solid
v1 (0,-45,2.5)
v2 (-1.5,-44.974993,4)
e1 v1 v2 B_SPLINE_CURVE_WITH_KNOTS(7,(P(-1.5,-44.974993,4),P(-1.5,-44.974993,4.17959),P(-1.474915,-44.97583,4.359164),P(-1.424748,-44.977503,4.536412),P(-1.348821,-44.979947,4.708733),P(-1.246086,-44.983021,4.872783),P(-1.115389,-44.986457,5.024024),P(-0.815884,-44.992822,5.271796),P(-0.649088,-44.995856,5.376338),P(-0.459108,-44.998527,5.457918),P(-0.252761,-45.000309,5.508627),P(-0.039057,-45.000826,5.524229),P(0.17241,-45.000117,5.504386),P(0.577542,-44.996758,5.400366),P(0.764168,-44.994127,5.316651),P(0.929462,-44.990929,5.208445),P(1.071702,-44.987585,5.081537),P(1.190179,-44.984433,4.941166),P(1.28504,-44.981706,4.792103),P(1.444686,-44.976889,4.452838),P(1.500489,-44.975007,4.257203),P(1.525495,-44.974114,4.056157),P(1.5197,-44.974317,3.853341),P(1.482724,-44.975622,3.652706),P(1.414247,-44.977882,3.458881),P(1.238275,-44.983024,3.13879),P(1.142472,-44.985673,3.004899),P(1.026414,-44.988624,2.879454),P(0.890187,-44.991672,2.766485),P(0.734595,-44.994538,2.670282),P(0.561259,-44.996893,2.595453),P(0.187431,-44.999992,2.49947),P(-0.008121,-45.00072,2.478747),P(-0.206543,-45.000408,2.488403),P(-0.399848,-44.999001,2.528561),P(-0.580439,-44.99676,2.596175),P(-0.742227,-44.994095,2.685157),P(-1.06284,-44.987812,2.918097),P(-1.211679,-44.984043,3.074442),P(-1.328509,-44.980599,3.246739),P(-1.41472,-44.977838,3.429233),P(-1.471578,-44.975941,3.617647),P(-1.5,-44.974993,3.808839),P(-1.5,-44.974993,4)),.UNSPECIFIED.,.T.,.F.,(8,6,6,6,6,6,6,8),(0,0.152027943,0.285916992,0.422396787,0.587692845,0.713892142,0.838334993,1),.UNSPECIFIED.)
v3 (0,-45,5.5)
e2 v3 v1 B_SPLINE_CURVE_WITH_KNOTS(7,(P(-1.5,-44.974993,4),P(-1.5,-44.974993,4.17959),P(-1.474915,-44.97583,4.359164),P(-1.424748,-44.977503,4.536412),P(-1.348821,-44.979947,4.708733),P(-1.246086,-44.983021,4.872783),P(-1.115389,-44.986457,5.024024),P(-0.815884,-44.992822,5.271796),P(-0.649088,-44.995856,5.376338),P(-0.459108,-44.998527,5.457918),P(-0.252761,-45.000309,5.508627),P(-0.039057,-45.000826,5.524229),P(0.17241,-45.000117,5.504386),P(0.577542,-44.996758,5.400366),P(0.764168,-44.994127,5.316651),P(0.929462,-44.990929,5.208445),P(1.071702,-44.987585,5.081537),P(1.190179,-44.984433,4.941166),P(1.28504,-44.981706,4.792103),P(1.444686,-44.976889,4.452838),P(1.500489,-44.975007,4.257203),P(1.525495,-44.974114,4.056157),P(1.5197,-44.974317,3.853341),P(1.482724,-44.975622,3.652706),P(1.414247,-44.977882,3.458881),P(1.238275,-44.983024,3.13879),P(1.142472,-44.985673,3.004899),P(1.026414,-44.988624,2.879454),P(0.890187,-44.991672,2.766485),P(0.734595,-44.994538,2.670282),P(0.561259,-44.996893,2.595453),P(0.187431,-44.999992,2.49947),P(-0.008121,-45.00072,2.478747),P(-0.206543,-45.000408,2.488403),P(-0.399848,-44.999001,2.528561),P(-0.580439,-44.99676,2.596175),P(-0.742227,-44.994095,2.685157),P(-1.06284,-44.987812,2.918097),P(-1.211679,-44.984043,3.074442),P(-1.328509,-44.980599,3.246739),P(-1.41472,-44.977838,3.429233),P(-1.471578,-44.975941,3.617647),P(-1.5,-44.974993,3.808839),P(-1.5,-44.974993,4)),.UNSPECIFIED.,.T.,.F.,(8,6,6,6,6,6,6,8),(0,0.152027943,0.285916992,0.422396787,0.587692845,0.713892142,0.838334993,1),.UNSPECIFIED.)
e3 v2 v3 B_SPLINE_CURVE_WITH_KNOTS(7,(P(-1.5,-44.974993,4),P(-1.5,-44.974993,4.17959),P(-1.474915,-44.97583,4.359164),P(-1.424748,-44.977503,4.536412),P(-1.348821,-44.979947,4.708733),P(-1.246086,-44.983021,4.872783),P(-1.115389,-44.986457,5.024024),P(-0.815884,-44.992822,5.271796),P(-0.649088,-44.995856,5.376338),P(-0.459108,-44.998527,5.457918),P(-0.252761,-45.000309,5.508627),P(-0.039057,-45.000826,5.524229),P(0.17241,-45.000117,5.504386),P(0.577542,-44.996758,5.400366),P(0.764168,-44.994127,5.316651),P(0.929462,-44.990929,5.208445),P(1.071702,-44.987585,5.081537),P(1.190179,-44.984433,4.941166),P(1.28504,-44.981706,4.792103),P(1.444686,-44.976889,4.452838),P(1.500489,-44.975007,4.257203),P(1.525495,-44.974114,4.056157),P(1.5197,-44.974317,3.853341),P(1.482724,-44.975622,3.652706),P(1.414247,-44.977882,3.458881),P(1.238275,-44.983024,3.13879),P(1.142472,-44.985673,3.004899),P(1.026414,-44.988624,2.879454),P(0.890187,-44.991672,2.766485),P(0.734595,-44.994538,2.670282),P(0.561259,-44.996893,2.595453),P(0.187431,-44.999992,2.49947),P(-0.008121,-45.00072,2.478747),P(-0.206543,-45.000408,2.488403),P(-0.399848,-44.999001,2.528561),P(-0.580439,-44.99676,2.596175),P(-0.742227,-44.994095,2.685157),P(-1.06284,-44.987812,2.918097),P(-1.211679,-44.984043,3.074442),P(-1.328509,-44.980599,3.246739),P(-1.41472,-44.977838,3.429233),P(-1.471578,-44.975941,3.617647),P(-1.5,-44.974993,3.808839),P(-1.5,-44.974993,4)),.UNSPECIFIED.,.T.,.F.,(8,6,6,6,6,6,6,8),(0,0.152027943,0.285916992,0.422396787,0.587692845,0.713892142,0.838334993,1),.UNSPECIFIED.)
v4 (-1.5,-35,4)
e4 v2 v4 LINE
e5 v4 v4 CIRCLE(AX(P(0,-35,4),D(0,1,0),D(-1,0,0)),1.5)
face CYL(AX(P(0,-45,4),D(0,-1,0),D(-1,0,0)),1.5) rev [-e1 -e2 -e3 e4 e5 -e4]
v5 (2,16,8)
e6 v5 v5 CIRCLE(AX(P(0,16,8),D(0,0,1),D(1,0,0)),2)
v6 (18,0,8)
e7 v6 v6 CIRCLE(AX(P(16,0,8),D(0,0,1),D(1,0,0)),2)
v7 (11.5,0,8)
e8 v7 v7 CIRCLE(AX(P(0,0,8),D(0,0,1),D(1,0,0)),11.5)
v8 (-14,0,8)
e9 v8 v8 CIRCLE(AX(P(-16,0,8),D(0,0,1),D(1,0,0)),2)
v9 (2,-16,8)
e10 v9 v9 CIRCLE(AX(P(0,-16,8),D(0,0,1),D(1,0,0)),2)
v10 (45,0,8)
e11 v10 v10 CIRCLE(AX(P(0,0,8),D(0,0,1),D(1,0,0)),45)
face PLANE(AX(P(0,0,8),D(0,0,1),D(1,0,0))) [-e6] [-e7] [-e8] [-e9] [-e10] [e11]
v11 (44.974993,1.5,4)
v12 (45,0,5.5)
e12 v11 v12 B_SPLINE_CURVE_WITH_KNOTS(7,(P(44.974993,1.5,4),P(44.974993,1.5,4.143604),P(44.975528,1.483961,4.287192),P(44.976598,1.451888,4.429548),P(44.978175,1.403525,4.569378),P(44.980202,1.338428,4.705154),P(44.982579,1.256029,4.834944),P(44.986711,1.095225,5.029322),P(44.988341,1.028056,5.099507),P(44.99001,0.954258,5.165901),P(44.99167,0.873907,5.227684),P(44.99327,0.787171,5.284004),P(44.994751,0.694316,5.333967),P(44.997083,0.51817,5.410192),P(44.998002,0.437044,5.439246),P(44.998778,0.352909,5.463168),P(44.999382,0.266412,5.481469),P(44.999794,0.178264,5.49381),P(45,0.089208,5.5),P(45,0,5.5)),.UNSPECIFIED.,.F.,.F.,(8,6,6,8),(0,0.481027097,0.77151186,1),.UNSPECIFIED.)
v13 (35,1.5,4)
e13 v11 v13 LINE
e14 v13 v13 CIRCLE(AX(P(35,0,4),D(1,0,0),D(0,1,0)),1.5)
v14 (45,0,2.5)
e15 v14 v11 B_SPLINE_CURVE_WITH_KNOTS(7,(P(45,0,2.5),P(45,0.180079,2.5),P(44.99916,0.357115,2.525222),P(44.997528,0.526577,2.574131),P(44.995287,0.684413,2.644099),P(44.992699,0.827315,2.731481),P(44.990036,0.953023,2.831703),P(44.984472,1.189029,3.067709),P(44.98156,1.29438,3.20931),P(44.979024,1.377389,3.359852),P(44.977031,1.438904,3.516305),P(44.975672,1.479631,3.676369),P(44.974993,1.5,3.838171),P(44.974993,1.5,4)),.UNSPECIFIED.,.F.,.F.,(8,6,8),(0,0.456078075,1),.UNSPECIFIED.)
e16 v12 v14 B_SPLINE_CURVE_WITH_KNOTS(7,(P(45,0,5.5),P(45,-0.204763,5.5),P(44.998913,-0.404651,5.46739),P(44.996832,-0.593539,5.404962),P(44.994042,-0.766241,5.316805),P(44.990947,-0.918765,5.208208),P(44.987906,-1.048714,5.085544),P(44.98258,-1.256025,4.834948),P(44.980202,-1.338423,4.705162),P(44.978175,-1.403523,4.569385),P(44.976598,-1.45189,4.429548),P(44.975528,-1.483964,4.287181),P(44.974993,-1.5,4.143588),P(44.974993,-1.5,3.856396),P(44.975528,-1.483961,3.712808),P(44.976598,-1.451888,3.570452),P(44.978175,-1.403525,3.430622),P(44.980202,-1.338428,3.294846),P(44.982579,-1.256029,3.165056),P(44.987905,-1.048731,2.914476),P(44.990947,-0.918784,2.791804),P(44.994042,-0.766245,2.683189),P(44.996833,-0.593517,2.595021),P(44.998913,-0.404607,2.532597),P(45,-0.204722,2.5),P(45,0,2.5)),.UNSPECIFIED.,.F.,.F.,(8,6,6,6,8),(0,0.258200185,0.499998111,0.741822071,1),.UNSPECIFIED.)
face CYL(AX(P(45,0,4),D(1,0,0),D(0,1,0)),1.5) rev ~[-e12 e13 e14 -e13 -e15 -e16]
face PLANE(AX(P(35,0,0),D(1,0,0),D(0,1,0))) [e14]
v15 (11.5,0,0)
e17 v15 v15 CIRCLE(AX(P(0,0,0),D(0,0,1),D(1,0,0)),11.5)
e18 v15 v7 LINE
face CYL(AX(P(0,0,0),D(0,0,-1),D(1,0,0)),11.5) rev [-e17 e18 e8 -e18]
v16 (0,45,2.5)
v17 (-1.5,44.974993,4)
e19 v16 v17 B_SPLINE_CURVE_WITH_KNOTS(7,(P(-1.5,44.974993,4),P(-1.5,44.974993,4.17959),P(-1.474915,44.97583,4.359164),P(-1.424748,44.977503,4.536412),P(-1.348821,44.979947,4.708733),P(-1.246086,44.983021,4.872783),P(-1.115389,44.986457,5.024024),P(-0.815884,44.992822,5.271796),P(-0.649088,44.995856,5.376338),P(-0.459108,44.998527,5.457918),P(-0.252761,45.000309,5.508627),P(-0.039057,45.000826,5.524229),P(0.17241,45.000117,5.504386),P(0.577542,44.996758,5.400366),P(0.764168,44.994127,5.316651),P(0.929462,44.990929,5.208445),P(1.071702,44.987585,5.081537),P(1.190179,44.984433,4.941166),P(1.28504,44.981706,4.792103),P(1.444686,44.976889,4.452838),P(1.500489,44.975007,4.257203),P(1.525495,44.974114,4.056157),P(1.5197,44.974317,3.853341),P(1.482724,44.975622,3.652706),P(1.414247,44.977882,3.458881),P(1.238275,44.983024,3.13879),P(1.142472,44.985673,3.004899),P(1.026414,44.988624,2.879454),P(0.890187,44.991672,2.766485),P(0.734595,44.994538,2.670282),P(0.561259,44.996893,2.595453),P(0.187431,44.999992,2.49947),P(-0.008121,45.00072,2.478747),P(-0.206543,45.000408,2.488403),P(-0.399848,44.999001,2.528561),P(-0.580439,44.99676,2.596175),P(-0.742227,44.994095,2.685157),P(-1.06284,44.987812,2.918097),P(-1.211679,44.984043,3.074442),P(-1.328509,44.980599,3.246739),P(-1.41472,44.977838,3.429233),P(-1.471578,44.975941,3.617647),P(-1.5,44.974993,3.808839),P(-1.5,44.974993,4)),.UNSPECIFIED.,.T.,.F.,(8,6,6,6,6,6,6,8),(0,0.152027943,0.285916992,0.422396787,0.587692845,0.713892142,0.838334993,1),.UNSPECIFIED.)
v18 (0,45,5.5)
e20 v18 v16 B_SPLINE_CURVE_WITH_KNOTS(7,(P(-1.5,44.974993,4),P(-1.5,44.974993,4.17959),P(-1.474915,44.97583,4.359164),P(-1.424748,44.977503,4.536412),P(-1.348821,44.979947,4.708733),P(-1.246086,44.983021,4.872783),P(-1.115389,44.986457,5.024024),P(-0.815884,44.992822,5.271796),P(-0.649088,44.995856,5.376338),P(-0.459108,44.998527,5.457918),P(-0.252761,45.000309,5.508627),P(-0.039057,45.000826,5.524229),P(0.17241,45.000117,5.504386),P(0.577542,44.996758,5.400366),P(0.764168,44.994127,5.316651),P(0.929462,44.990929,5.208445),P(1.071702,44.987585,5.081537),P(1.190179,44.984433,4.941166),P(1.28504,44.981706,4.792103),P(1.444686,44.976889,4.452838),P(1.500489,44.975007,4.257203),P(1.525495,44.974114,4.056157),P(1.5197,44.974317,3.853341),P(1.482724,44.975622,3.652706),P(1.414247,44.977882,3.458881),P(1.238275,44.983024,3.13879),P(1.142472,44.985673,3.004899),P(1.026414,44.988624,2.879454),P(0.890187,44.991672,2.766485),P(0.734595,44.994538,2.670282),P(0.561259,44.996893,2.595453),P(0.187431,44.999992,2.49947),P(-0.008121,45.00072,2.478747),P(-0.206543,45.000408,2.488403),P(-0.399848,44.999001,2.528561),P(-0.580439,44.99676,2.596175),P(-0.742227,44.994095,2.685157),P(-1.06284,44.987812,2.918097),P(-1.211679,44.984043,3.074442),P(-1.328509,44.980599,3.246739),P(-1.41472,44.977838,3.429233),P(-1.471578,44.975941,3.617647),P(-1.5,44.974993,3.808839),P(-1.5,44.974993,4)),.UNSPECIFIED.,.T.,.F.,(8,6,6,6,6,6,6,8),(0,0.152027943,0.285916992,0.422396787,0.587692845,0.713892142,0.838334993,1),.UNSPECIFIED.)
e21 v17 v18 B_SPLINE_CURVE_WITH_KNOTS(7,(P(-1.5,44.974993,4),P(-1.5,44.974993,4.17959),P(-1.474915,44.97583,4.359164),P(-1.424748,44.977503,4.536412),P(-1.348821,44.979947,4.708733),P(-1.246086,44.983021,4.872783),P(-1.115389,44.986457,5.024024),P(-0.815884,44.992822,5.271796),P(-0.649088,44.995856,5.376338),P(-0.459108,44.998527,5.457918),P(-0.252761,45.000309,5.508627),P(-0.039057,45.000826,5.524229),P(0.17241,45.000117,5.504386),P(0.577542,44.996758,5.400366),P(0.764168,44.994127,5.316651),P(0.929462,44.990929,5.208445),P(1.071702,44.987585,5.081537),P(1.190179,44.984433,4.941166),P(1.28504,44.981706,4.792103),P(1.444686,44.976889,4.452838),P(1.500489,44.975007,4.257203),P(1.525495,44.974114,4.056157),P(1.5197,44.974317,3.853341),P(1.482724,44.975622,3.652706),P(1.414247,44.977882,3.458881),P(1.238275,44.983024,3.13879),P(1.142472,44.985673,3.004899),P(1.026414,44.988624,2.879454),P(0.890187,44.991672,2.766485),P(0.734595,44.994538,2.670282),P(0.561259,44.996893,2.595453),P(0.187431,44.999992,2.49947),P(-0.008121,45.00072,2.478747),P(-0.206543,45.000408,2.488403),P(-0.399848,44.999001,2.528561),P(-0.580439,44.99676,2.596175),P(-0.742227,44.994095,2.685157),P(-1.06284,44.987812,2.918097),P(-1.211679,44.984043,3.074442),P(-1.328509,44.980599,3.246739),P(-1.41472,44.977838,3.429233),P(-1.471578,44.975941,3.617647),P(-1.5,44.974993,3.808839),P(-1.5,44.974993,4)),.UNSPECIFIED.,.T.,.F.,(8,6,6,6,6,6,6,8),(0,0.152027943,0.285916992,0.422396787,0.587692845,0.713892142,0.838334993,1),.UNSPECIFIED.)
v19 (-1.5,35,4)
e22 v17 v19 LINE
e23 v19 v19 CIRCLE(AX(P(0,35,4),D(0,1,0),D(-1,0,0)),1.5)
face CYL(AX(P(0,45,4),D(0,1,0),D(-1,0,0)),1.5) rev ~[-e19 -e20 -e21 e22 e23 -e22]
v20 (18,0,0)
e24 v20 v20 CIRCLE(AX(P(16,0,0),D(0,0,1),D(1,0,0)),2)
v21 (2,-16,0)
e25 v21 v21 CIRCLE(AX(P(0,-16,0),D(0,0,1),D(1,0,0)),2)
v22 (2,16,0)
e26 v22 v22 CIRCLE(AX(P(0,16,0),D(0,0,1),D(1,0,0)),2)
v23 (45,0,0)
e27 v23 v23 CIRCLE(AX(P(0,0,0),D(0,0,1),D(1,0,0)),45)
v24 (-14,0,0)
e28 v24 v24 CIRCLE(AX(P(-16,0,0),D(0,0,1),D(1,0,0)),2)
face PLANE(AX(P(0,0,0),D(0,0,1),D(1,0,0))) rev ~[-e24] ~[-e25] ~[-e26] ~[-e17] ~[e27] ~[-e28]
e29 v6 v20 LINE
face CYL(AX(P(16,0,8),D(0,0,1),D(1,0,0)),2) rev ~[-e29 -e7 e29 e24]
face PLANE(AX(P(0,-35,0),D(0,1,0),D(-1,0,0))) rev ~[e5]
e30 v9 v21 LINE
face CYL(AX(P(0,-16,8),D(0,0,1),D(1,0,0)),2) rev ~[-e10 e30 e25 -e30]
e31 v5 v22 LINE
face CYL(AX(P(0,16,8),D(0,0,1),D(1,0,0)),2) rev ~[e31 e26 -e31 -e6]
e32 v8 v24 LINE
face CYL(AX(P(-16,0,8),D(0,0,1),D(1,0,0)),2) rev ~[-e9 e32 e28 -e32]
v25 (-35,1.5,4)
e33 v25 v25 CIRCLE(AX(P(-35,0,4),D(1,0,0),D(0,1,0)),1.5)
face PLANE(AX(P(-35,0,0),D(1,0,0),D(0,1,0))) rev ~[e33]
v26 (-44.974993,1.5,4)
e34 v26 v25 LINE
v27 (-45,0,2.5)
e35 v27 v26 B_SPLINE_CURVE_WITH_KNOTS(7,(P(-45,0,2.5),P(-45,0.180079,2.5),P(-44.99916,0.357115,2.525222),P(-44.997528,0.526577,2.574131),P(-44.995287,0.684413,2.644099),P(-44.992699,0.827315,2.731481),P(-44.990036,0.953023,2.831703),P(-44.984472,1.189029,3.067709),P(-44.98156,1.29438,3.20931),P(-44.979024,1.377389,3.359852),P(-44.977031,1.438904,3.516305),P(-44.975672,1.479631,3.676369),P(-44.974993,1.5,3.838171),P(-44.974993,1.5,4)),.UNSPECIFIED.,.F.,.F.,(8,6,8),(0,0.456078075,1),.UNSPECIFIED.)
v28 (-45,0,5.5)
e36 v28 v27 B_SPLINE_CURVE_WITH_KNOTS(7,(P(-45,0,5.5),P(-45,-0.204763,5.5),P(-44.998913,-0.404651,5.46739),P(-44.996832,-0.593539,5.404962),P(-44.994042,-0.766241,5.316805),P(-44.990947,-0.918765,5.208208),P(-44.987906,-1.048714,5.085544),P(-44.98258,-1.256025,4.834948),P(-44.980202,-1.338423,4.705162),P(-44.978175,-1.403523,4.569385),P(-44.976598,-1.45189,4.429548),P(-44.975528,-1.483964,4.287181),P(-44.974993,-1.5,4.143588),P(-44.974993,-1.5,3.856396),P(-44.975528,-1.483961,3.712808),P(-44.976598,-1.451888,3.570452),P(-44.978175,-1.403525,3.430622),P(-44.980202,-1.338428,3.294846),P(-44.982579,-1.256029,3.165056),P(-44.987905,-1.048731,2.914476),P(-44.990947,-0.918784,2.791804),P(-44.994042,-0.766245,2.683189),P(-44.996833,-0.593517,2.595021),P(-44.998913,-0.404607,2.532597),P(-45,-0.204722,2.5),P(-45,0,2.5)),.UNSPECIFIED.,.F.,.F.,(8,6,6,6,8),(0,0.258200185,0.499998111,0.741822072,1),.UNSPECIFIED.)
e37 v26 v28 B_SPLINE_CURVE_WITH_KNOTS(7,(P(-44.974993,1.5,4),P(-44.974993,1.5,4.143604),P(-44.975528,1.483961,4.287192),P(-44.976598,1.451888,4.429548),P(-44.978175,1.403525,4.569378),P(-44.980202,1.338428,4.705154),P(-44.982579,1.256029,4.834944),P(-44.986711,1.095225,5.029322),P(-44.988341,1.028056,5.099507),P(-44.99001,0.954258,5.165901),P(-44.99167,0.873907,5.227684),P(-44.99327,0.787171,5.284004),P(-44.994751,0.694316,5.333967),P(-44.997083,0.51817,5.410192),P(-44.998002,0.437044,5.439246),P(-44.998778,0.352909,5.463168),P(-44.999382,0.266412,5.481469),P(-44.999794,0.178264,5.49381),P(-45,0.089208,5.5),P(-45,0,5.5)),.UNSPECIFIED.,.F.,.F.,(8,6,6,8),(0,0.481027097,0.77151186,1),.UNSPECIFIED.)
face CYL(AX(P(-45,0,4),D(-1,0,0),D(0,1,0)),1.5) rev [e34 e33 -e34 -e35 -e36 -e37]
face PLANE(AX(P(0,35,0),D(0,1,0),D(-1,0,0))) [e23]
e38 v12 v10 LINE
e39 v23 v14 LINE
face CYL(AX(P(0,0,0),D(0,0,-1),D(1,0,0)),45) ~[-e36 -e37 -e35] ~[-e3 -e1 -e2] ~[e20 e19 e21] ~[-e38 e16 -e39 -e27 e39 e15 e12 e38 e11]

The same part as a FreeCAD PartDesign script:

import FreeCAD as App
import Part
import Sketcher
from FreeCAD import Vector

doc = App.newDocument("Part")
body = doc.addObject("PartDesign::Body", "Body")

# Sketch on XY plane
sketch1 = body.newObject("Sketcher::SketchObject", "Sketch")
sketch1.AttachmentSupport = (doc.getObject("XY_Plane"), [""])
sketch1.MapMode = "FlatFace"
sketch1.addGeometry([
    Part.Circle(Vector(0, 0, 0), Vector(0, 0, 1), 45),
    Part.Circle(Vector(0, 0, 0), Vector(0, 0, 1), 12),
], False)
sketch1.addConstraint([
    Sketcher.Constraint("Coincident", 0, 3, -1, 1),
    Sketcher.Constraint("Coincident", 1, 3, -1, 1),
    Sketcher.Constraint("Diameter", 0, 90.0),
    Sketcher.Constraint("Diameter", 1, 23.0),
])
pad1 = body.newObject("PartDesign::Pad", "Pad")
pad1.Profile = sketch1
pad1.Length = 8

# Sketch on XY plane
sketch2 = body.newObject("Sketcher::SketchObject", "Sketch001")
sketch2.AttachmentSupport = (doc.getObject("XY_Plane"), [""])
sketch2.MapMode = "FlatFace"
sketch2.AttachmentOffset = App.Placement(Vector(0, 0, 8), App.Rotation())
sketch2.addGeometry([
    Part.Circle(Vector(0, 16, 0), Vector(0, 0, 1), 2),
    Part.Circle(Vector(-16, 0, 0), Vector(0, 0, 1), 2),
    Part.Circle(Vector(0, -16, 0), Vector(0, 0, 1), 2),
    Part.Circle(Vector(16, 0, 0), Vector(0, 0, 1), 2),
], False)
sketch2.addConstraint([
    Sketcher.Constraint("Equal", 0, 1),
    Sketcher.Constraint("Equal", 1, 2),
    Sketcher.Constraint("Equal", 2, 3),
    Sketcher.Constraint("Symmetric", 0, 3, 2, 3, -1, 1),
    Sketcher.Constraint("Symmetric", 1, 3, 3, 3, -1, 1),
    Sketcher.Constraint("PointOnObject", 0, 3, -2),
    Sketcher.Constraint("PointOnObject", 1, 3, -1),
    Sketcher.Constraint("Diameter", 0, 4.0),
    Sketcher.Constraint("DistanceY", -1, 1, 0, 3, 16.0),
    Sketcher.Constraint("DistanceX", 1, 3, -1, 1, 16.0),
])
pocket1 = body.newObject("PartDesign::Pocket", "Pocket")
pocket1.Profile = sketch2
pocket1.Length = 8

# Sketch on YZ plane
sketch3 = body.newObject("Sketcher::SketchObject", "Sketch002")
sketch3.AttachmentSupport = (doc.getObject("YZ_Plane"), [""])
sketch3.MapMode = "FlatFace"
sketch3.AttachmentOffset = App.Placement(Vector(0, 0, 45), App.Rotation())
sketch3.addGeometry(Part.Circle(Vector(0, 4, 0), Vector(0, 0, 1), 1.5), False)
sketch3.addConstraint([
    Sketcher.Constraint("PointOnObject", 0, 3, -2),
    Sketcher.Constraint("Diameter", 0, 3.0),
    Sketcher.Constraint("DistanceY", -1, 1, 0, 3, 4.0),
])
pocket2 = body.newObject("PartDesign::Pocket", "Pocket001")
pocket2.Profile = sketch3
pocket2.Length = 10

# Sketch on YZ plane
sketch4 = body.newObject("Sketcher::SketchObject", "Sketch003")
sketch4.AttachmentSupport = (doc.getObject("YZ_Plane"), [""])
sketch4.MapMode = "FlatFace"
sketch4.AttachmentOffset = App.Placement(Vector(0, 0, -45), App.Rotation())
sketch4.addGeometry(Part.Circle(Vector(0, 4, 0), Vector(0, 0, 1), 1.5), False)
sketch4.addConstraint([
    Sketcher.Constraint("PointOnObject", 0, 3, -2),
    Sketcher.Constraint("Diameter", 0, 3.0),
    Sketcher.Constraint("DistanceY", -1, 1, 0, 3, 4.0),
])
pocket3 = body.newObject("PartDesign::Pocket", "Pocket002")
pocket3.Profile = sketch4
pocket3.Length = 10
pocket3.Reversed = True

# Sketch on XZ plane
sketch5 = body.newObject("Sketcher::SketchObject", "Sketch004")
sketch5.AttachmentSupport = (doc.getObject("XZ_Plane"), [""])
sketch5.MapMode = "FlatFace"
sketch5.AttachmentOffset = App.Placement(Vector(0, 0, -45), App.Rotation())
sketch5.addGeometry(Part.Circle(Vector(0, 4, 0), Vector(0, 0, 1), 1.5), False)
sketch5.addConstraint([
    Sketcher.Constraint("PointOnObject", 0, 3, -2),
    Sketcher.Constraint("Diameter", 0, 3.0),
    Sketcher.Constraint("DistanceY", -1, 1, 0, 3, 4.0),
])
pocket4 = body.newObject("PartDesign::Pocket", "Pocket003")
pocket4.Profile = sketch5
pocket4.Length = 10
pocket4.Reversed = True

# Sketch on XZ plane
sketch6 = body.newObject("Sketcher::SketchObject", "Sketch005")
sketch6.AttachmentSupport = (doc.getObject("XZ_Plane"), [""])
sketch6.MapMode = "FlatFace"
sketch6.AttachmentOffset = App.Placement(Vector(0, 0, 45), App.Rotation())
sketch6.addGeometry(Part.Circle(Vector(0, 4, 0), Vector(0, 0, 1), 1.5), False)
sketch6.addConstraint([
    Sketcher.Constraint("PointOnObject", 0, 3, -2),
    Sketcher.Constraint("Diameter", 0, 3.0),
    Sketcher.Constraint("DistanceY", -1, 1, 0, 3, 4.0),
])
pocket5 = body.newObject("PartDesign::Pocket", "Pocket004")
pocket5.Profile = sketch6
pocket5.Length = 10

doc.recompute()
